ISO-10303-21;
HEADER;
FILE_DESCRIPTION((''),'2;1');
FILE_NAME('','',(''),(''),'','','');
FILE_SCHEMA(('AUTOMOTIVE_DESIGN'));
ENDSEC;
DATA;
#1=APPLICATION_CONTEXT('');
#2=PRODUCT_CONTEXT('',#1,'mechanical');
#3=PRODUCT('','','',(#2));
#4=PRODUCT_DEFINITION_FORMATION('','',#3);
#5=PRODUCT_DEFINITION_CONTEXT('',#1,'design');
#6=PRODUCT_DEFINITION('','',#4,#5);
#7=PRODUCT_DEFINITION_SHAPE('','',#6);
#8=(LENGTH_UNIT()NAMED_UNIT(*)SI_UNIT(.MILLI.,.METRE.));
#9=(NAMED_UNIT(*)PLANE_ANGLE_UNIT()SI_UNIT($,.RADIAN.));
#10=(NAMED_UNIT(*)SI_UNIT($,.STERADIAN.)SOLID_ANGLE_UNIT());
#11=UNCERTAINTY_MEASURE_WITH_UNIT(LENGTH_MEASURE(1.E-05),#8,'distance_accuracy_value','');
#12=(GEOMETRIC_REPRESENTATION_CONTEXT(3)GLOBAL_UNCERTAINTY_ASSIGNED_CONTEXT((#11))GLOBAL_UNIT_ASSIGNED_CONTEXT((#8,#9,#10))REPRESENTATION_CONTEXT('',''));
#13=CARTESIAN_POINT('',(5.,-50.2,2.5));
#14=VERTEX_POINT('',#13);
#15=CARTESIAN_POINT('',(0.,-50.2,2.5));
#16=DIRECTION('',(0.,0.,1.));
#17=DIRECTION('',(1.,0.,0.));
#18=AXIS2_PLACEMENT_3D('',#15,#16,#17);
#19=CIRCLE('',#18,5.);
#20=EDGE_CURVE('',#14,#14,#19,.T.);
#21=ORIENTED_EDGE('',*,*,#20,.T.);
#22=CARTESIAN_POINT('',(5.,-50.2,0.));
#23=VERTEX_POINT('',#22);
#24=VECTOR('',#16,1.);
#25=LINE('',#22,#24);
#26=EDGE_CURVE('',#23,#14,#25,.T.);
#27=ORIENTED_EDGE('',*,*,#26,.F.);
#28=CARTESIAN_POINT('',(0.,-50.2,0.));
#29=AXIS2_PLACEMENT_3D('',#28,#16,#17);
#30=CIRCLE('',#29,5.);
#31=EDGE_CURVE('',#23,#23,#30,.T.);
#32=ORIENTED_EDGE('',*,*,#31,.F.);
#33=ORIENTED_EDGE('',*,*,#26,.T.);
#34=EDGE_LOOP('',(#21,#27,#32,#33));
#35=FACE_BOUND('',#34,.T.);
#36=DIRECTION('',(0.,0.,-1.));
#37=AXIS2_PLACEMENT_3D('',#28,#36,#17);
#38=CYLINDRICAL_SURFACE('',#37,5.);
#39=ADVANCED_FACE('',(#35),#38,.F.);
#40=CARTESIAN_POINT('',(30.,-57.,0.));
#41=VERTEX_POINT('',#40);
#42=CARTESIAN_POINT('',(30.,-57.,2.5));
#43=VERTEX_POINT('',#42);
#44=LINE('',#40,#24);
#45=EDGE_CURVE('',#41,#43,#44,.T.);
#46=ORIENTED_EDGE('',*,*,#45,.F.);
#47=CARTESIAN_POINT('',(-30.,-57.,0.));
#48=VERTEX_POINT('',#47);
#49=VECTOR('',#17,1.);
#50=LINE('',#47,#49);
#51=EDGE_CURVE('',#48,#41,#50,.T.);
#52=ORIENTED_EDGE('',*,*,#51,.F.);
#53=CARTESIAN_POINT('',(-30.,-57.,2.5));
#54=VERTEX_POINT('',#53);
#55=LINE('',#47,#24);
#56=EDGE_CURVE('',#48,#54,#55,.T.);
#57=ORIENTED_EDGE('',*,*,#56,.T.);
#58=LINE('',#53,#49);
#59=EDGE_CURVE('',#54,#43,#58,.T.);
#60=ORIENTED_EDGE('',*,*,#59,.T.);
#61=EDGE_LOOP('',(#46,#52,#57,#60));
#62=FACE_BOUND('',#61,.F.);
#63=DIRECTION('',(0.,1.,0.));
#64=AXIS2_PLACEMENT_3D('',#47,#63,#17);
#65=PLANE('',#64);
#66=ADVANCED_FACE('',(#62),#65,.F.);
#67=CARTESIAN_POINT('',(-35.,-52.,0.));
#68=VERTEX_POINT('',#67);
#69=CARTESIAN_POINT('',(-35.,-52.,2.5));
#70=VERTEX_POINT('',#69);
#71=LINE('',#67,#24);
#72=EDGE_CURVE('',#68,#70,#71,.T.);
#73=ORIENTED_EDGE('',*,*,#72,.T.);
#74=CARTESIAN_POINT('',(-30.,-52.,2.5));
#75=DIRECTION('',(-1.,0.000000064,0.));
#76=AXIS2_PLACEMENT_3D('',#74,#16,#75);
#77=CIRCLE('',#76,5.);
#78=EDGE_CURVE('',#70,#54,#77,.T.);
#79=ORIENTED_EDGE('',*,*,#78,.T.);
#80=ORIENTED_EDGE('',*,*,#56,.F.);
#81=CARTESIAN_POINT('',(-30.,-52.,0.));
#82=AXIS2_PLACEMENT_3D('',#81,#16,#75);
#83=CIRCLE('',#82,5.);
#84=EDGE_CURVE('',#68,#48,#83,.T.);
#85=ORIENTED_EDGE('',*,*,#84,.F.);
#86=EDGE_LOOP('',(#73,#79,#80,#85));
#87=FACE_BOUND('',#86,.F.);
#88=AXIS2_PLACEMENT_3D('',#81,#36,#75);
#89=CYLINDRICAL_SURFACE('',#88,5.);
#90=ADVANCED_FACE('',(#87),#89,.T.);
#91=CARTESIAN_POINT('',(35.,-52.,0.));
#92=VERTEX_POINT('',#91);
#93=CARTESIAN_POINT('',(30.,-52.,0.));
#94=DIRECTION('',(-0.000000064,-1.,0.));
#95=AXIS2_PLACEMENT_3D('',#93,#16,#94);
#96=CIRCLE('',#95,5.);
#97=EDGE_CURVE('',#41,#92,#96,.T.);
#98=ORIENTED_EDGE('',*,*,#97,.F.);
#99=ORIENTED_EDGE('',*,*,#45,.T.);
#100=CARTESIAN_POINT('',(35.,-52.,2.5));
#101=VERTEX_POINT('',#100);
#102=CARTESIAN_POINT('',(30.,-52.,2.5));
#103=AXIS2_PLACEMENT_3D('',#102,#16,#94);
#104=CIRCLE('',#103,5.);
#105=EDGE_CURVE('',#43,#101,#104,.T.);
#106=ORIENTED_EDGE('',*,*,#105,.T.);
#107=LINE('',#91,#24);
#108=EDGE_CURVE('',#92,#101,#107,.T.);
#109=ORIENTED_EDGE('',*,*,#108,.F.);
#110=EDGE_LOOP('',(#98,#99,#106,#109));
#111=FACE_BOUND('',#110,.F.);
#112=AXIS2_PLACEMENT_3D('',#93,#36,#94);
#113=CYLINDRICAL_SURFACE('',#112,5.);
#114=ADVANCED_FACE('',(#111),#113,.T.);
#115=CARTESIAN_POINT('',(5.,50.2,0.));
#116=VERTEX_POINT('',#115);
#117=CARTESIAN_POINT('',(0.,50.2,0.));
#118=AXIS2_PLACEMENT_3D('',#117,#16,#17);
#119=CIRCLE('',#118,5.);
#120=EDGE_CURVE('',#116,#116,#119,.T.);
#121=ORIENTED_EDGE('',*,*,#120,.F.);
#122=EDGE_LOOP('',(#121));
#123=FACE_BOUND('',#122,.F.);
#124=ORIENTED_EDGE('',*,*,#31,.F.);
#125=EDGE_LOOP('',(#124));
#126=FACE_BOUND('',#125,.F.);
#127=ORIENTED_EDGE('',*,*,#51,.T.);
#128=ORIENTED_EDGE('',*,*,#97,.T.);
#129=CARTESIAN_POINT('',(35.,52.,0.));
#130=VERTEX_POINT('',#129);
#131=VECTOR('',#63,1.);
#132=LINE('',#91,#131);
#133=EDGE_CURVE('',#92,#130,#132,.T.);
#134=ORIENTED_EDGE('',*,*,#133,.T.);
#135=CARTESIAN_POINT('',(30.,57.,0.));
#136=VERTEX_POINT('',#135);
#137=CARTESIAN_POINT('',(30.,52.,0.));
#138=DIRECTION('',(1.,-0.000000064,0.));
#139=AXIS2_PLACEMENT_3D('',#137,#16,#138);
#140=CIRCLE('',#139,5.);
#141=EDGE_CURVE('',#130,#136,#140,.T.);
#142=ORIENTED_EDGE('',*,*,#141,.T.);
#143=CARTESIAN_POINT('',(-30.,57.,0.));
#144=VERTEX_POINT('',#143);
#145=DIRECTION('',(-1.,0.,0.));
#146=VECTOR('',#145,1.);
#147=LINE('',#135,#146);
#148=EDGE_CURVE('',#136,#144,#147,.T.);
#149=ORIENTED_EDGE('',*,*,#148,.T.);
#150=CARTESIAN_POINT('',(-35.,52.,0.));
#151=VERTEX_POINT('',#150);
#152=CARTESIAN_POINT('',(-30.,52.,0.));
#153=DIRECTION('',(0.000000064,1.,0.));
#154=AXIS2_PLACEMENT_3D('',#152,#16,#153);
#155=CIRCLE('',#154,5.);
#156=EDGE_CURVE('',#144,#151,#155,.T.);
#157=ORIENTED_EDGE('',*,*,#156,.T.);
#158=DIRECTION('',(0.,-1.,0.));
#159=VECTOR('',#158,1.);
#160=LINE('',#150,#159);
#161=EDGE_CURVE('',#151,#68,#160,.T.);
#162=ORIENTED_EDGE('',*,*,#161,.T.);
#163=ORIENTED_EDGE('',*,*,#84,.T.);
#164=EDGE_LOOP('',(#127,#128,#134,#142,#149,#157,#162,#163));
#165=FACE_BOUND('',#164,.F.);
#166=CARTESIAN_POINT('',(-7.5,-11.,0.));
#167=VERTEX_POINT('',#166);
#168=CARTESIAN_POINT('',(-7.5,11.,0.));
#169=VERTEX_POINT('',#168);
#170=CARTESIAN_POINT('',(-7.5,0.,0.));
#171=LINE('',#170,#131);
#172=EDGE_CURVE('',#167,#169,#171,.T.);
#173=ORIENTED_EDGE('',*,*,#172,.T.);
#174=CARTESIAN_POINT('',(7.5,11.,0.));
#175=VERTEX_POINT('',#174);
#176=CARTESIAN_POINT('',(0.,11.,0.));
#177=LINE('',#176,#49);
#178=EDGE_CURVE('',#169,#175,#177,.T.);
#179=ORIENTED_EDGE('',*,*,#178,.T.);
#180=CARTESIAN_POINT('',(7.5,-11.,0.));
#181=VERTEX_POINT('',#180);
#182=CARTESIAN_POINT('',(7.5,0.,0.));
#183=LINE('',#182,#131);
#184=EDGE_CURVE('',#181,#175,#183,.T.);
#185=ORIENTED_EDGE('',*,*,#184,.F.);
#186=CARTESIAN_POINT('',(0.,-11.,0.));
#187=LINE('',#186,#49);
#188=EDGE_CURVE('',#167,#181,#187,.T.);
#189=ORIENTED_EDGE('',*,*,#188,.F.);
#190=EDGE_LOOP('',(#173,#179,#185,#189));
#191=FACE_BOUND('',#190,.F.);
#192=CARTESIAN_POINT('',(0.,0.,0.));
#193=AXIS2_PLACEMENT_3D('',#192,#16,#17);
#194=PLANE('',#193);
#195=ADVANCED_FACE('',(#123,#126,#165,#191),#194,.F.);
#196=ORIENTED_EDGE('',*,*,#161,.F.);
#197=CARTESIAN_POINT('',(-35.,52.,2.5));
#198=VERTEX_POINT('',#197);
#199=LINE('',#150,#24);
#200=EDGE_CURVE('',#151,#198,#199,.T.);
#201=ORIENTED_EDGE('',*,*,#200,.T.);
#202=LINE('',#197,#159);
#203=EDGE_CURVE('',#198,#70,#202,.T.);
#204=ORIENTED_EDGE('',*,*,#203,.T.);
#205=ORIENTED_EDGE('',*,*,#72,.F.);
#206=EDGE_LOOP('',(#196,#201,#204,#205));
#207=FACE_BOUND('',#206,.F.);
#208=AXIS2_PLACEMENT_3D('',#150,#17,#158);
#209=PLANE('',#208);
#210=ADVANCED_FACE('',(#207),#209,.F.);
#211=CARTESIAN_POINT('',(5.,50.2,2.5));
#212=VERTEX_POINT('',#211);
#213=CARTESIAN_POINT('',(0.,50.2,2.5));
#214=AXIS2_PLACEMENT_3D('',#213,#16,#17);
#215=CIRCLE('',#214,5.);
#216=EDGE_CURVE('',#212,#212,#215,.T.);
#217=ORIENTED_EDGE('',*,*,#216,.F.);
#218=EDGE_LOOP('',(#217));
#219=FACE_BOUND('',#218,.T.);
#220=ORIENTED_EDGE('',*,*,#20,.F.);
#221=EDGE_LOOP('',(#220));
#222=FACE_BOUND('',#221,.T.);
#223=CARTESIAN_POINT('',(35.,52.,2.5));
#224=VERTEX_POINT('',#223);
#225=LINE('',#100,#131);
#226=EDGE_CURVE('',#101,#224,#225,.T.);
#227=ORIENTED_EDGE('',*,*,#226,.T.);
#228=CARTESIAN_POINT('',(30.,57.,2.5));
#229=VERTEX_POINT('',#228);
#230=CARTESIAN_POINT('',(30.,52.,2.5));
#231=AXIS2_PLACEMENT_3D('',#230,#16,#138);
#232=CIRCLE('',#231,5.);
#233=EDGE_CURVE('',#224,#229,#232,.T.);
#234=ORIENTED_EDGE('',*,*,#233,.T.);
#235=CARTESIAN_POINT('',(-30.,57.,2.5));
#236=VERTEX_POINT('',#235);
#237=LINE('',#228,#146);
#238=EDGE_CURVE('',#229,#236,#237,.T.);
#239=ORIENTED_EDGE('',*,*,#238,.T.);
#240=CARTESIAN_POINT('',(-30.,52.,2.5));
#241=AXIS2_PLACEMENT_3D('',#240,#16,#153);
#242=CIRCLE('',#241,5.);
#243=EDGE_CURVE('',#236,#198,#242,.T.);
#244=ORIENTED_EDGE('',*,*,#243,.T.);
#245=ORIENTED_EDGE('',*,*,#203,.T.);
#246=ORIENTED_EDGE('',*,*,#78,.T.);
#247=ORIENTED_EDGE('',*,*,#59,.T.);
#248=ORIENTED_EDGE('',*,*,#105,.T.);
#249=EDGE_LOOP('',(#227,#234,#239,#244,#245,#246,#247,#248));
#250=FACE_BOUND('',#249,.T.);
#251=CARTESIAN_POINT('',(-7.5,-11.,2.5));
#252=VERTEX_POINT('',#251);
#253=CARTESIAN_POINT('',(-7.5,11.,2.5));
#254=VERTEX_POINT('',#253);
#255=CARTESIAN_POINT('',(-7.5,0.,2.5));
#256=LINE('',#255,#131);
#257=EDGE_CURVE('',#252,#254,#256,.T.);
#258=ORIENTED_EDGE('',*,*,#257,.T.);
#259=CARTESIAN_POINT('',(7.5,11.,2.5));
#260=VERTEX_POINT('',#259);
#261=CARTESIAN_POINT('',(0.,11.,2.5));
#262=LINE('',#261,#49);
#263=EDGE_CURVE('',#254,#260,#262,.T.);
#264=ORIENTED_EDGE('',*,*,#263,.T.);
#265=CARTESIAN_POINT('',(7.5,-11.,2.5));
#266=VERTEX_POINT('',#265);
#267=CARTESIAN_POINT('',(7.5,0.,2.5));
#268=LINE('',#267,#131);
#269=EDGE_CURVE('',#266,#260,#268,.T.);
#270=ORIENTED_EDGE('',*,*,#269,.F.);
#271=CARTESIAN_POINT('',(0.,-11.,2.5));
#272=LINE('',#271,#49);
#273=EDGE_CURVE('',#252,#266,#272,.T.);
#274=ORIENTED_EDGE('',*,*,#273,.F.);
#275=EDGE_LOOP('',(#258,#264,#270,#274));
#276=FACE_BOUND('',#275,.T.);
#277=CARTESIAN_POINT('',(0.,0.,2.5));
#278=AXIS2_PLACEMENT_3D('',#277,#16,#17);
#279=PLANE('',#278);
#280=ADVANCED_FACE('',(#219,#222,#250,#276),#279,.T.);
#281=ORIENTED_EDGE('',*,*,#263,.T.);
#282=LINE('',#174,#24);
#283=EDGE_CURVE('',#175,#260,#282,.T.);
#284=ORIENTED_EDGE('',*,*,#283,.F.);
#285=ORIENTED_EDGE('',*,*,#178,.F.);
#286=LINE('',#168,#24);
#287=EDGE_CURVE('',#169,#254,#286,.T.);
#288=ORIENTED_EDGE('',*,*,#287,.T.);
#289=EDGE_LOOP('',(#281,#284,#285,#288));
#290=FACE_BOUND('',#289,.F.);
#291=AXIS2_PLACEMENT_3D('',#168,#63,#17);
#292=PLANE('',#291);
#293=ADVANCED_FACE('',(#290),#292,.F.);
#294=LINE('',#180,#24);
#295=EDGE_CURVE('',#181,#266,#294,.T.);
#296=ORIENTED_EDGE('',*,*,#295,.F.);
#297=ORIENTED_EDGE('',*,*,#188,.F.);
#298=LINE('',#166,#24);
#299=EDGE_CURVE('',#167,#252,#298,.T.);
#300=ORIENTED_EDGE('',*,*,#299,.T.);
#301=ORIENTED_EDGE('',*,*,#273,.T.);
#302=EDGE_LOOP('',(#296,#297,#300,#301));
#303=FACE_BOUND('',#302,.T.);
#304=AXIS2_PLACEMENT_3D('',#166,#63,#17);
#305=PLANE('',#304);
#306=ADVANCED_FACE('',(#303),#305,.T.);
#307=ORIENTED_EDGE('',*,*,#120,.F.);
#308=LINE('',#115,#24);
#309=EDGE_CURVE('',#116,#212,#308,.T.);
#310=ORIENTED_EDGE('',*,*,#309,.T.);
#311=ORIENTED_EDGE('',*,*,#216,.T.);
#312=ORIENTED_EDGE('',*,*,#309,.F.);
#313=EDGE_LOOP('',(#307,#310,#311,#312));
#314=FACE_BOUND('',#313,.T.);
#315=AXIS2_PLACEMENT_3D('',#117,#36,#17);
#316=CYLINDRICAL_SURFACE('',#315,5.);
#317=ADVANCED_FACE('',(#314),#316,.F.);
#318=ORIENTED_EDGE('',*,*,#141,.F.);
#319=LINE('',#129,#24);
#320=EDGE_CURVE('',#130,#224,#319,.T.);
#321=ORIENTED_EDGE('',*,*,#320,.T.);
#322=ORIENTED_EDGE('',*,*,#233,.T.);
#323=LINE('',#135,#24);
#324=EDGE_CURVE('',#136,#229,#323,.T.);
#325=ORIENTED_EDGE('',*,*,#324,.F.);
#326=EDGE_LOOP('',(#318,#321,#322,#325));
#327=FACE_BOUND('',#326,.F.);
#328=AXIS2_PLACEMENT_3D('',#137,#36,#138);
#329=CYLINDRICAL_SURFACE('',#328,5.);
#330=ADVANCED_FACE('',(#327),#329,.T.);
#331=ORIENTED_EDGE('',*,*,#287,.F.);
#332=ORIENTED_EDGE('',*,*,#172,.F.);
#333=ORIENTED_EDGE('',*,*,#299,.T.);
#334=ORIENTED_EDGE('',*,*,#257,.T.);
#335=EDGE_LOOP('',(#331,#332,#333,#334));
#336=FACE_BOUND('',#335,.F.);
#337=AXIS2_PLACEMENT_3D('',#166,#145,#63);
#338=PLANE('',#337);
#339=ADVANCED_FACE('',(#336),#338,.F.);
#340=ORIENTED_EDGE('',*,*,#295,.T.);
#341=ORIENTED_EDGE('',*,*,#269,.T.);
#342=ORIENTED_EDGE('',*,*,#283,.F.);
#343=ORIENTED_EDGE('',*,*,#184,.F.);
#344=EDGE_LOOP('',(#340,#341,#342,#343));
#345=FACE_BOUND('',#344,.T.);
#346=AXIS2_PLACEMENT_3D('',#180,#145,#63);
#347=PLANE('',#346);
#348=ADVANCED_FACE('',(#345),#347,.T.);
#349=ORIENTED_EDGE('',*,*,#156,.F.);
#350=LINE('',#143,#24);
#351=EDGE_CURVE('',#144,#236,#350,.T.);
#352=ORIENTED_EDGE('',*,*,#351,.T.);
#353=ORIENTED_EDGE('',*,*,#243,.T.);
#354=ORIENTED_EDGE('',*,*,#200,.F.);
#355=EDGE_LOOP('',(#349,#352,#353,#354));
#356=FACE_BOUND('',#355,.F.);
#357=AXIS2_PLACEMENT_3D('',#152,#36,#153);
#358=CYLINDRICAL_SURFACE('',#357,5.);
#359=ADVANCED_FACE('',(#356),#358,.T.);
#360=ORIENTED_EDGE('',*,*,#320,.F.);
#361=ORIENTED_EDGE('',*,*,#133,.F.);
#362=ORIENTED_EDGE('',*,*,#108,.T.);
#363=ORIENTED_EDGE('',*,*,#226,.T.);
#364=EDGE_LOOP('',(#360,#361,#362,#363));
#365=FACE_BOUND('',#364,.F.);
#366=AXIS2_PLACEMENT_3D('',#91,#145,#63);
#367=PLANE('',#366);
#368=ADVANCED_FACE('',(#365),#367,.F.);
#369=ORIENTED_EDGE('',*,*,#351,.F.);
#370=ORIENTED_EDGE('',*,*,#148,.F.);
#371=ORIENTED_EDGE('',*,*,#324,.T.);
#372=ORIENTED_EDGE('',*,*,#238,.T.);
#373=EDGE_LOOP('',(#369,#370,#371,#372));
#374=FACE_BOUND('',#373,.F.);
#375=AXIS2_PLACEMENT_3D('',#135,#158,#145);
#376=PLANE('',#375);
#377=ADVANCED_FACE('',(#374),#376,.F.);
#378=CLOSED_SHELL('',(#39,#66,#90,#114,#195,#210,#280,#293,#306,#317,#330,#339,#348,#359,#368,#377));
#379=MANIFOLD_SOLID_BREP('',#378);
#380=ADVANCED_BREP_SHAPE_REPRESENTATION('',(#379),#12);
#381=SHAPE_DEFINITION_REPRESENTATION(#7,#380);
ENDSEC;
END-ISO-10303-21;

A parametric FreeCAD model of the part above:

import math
import FreeCAD as App
import Part
import Sketcher

V = App.Vector
Q = App.Units.Quantity

doc = App.newDocument("Part")
body = doc.addObject("PartDesign::Body", "Body")

sketch1 = body.newObject("Sketcher::SketchObject", "Sketch")
sketch1.AttachmentSupport = (doc.getObject("XY_Plane"), [""])
sketch1.MapMode = "FlatFace"
sketch1.addGeometry([
    Part.LineSegment(V(30, 57, 0), V(-30, 57, 0)),
    Part.ArcOfCircle(Part.Circle(V(-30, 52, 0), V(0, 0, 1), 5), math.radians(90), math.radians(180)),
    Part.LineSegment(V(-35, 52, 0), V(-35, -52, 0)),
    Part.ArcOfCircle(Part.Circle(V(-30, -52, 0), V(0, 0, 1), 5), math.radians(180), math.radians(270)),
    Part.LineSegment(V(-30, -57, 0), V(30, -57, 0)),
    Part.ArcOfCircle(Part.Circle(V(30, -52, 0), V(0, 0, 1), 5), math.radians(-90), math.radians(0)),
    Part.LineSegment(V(35, -52, 0), V(35, 52, 0)),
    Part.ArcOfCircle(Part.Circle(V(30, 52, 0), V(0, 0, 1), 5), math.radians(0), math.radians(90)),
    Part.Circle(V(0, -50.2, 0), V(0, 0, 1), 5),
    Part.LineSegment(V(7.5, -11, 0), V(-7.5, -11, 0)),
    Part.LineSegment(V(-7.5, -11, 0), V(-7.5, 11, 0)),
    Part.LineSegment(V(-7.5, 11, 0), V(7.5, 11, 0)),
    Part.LineSegment(V(7.5, 11, 0), V(7.5, -11, 0)),
    Part.Circle(V(0, 50.2, 0), V(0, 0, 1), 5),
], False)
sketch1.addConstraint([
    Sketcher.Constraint("Tangent", 0, 2, 1, 1),
    Sketcher.Constraint("Tangent", 1, 2, 2, 1),
    Sketcher.Constraint("Tangent", 2, 2, 3, 1),
    Sketcher.Constraint("Tangent", 3, 2, 4, 1),
    Sketcher.Constraint("Tangent", 4, 2, 5, 1),
    Sketcher.Constraint("Tangent", 5, 2, 6, 1),
    Sketcher.Constraint("Tangent", 6, 2, 7, 1),
    Sketcher.Constraint("Tangent", 7, 2, 0, 1),
    Sketcher.Constraint("Coincident", 9, 2, 10, 1),
    Sketcher.Constraint("Coincident", 10, 2, 11, 1),
    Sketcher.Constraint("Coincident", 11, 2, 12, 1),
    Sketcher.Constraint("Coincident", 12, 2, 9, 1),
    Sketcher.Constraint("Horizontal", 0),
    Sketcher.Constraint("Vertical", 2),
    Sketcher.Constraint("Horizontal", 4),
    Sketcher.Constraint("Vertical", 6),
    Sketcher.Constraint("Horizontal", 9),
    Sketcher.Constraint("Vertical", 10),
    Sketcher.Constraint("Horizontal", 11),
    Sketcher.Constraint("Vertical", 12),
    Sketcher.Constraint("Equal", 1, 3),
    Sketcher.Constraint("Equal", 3, 5),
    Sketcher.Constraint("Equal", 5, 7),
    Sketcher.Constraint("Equal", 7, 8),
    Sketcher.Constraint("Equal", 8, 13),
    Sketcher.Constraint("Symmetric", 1, 3, 5, 3, -1, 1),
    Sketcher.Constraint("Symmetric", 8, 3, 13, 3, -1, 1),
    Sketcher.Constraint("Symmetric", 9, 2, 11, 2, -1, 1),
    Sketcher.Constraint("PointOnObject", 8, 3, -2),
    Sketcher.Constraint("Diameter", 8, Q("10 mm")),
    Sketcher.Constraint("DistanceX", 0, 2, 0, 1, Q("60 mm")),
    Sketcher.Constraint("DistanceX", 9, 2, 9, 1, Q("15 mm")),
    Sketcher.Constraint("DistanceY", 2, 2, 2, 1, Q("104 mm")),
    Sketcher.Constraint("DistanceY", 10, 1, 10, 2, Q("22 mm")),
    Sketcher.Constraint("DistanceY", 8, 3, -1, 1, Q("50.2 mm")),
])
pad1 = body.newObject("PartDesign::Pad", "Pad")
pad1.Profile = sketch1
pad1.Length = 2.5

doc.recompute()
